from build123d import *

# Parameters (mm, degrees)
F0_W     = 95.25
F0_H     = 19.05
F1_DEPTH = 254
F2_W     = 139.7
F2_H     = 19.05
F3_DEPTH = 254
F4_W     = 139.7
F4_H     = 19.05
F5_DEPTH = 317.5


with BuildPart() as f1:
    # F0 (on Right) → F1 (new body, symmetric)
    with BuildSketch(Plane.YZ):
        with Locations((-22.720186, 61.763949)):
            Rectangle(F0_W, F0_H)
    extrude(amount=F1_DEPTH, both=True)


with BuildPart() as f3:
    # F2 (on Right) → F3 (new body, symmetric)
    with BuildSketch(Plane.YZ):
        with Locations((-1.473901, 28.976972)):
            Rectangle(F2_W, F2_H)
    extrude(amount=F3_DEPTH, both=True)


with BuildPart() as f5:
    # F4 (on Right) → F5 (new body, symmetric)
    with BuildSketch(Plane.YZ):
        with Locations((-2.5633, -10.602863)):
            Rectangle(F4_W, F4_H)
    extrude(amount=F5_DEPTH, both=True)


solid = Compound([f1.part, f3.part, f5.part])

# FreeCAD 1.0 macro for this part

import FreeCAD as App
import Part
import Sketcher
from FreeCAD import Vector
Q = App.Units.Quantity


def add_polygon(sketch, points):
    """Adds a closed chain of lines whose ends are joined by coincident constraints."""
    first, n = sketch.GeometryCount, len(points)
    for a, b in zip(points, points[1:] + points[:1]):
        sketch.addGeometry(Part.LineSegment(App.Vector(*a, 0), App.Vector(*b, 0)), False)
    for i in range(n):
        sketch.addConstraint(Sketcher.Constraint("Coincident", first + i, 2, first + (i + 1) % n, 1))

doc = App.newDocument("Part")
body = doc.addObject("PartDesign::Body", "Body")

sketch1 = body.newObject("Sketcher::SketchObject", "Sketch")
sketch1.AttachmentSupport = (doc.getObject("YZ_Plane"), [""])
sketch1.MapMode = "FlatFace"
add_polygon(sketch1, [(-70, 71), (-70, 52), (25, 52), (25, 71)])
sketch1.addConstraint([
    Sketcher.Constraint("Vertical", 0),
    Sketcher.Constraint("Horizontal", 1),
    Sketcher.Constraint("Vertical", 2),
    Sketcher.Constraint("Horizontal", 3),
    Sketcher.Constraint("DistanceX", 1, 1, 1, 2, Q("3.75 in")),
    Sketcher.Constraint("DistanceY", 0, 2, 0, 1, Q("0.75 in")),
    Sketcher.Constraint("DistanceY", -1, 1, 0, 2, 52.238949),
    Sketcher.Constraint("DistanceX", 0, 2, -1, 1, 70.345186),
])
pad1 = body.newObject("PartDesign::Pad", "Pad")
pad1.Profile = sketch1
pad1.Length = Q("20 in")
pad1.Midplane = True
body2 = doc.addObject("PartDesign::Body", "Body001")

sketch2 = body2.newObject("Sketcher::SketchObject", "Sketch001")
sketch2.AttachmentSupport = (doc.getObject("YZ_Plane001"), [""])
sketch2.MapMode = "FlatFace"
add_polygon(sketch2, [(-71, 39), (-71, 19), (68, 19), (68, 39)])
sketch2.addConstraint([
    Sketcher.Constraint("Vertical", 0),
    Sketcher.Constraint("Horizontal", 1),
    Sketcher.Constraint("Vertical", 2),
    Sketcher.Constraint("Horizontal", 3),
    Sketcher.Constraint("DistanceX", 1, 1, 1, 2, Q("5.5 in")),
    Sketcher.Constraint("DistanceY", 0, 2, 0, 1, Q("0.75 in")),
    Sketcher.Constraint("DistanceX", 0, 2, -1, 1, 71.323901),
    Sketcher.Constraint("DistanceY", -1, 1, 0, 2, 19.451972),
])
pad2 = body2.newObject("PartDesign::Pad", "Pad001")
pad2.Profile = sketch2
pad2.Length = Q("20 in")
pad2.Midplane = True
body3 = doc.addObject("PartDesign::Body", "Body002")

sketch3 = body3.newObject("Sketcher::SketchObject", "Sketch002")
sketch3.AttachmentSupport = (doc.getObject("YZ_Plane002"), [""])
sketch3.MapMode = "FlatFace"
add_polygon(sketch3, [(-72, -1), (-72, -20), (67, -20), (67, -1)])
sketch3.addConstraint([
    Sketcher.Constraint("Vertical", 0),
    Sketcher.Constraint("Horizontal", 1),
    Sketcher.Constraint("Vertical", 2),
    Sketcher.Constraint("Horizontal", 3),
    Sketcher.Constraint("DistanceX", 1, 1, 1, 2, Q("5.5 in")),
    Sketcher.Constraint("DistanceY", 0, 2, 0, 1, Q("0.75 in")),
    Sketcher.Constraint("DistanceX", 0, 2, -1, 1, 72.4133),
    Sketcher.Constraint("DistanceY", 0, 2, -1, 1, 20.127863),
])
pad3 = body3.newObject("PartDesign::Pad", "Pad002")
pad3.Profile = sketch3
pad3.Length = Q("25 in")
pad3.Midplane = True

doc.recompute()
